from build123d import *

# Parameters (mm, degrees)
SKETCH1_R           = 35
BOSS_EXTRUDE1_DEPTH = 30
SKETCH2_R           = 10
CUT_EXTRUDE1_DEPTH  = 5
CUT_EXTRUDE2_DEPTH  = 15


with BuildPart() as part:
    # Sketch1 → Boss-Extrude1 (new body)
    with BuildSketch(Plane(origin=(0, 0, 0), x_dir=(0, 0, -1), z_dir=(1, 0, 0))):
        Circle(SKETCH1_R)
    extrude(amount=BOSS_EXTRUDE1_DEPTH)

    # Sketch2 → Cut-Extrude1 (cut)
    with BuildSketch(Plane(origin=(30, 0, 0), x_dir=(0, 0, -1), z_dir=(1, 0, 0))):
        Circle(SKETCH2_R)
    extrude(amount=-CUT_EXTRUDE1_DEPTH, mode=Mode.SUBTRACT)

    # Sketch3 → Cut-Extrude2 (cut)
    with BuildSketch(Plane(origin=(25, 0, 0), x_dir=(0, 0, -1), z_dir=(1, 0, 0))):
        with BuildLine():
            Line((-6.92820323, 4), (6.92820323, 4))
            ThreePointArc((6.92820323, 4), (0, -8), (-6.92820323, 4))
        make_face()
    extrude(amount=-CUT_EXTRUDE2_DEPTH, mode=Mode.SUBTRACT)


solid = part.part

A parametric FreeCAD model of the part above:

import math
import FreeCAD as App
import Part
import Sketcher

V = App.Vector
Q = App.Units.Quantity

doc = App.newDocument("Part")
body = doc.addObject("PartDesign::Body", "Body")

# Sketch on YZ plane
sketch1 = body.newObject("Sketcher::SketchObject", "Sketch")
sketch1.AttachmentSupport = (doc.getObject("YZ_Plane"), [""])
sketch1.MapMode = "FlatFace"
sketch1.addGeometry(Part.Circle(V(0, 0, 0), V(0, 0, 1), 35), False)
sketch1.addConstraint(Sketcher.Constraint("Coincident", 0, 3, -1, 1))
sketch1.addConstraint(Sketcher.Constraint("Diameter", 0, Q("70 mm")))
pad1 = body.newObject("PartDesign::Pad", "Pad")
pad1.Profile = sketch1
pad1.Length = 30

# Sketch on YZ plane
sketch2 = body.newObject("Sketcher::SketchObject", "Sketch001")
sketch2.AttachmentSupport = (doc.getObject("YZ_Plane"), [""])
sketch2.MapMode = "FlatFace"
sketch2.AttachmentOffset = App.Placement(V(0, 0, 30), App.Rotation())
sketch2.addGeometry(Part.Circle(V(0, 0, 0), V(0, 0, 1), 10), False)
sketch2.addConstraint(Sketcher.Constraint("Coincident", 0, 3, -1, 1))
sketch2.addConstraint(Sketcher.Constraint("Diameter", 0, Q("20 mm")))
pocket1 = body.newObject("PartDesign::Pocket", "Pocket")
pocket1.Profile = sketch2
pocket1.Length = 5

# Sketch on YZ plane
sketch3 = body.newObject("Sketcher::SketchObject", "Sketch002")
sketch3.AttachmentSupport = (doc.getObject("YZ_Plane"), [""])
sketch3.MapMode = "FlatFace"
sketch3.AttachmentOffset = App.Placement(V(0, 0, 25), App.Rotation())
sketch3.addGeometry(Part.LineSegment(V(4, -7, 0), V(4, 7, 0)), False)
sketch3.addGeometry(Part.ArcOfCircle(Part.Circle(V(0, 0, 0), V(0, 0, 1), 8), math.radians(60), math.radians(300)), False)
sketch3.addConstraint(Sketcher.Constraint("Coincident", 0, 1, 1, 2))
sketch3.addConstraint(Sketcher.Constraint("Coincident", 1, 1, 0, 2))
sketch3.addConstraint(Sketcher.Constraint("Vertical", 0))
sketch3.addConstraint(Sketcher.Constraint("Coincident", 1, 3, -1, 1))
sketch3.addConstraint(Sketcher.Constraint("Radius", 1, Q("8 mm")))
sketch3.addConstraint(Sketcher.Constraint("DistanceX", -1, 1, 0, 1, Q("4 mm")))
pocket2 = body.newObject("PartDesign::Pocket", "Pocket001")
pocket2.Profile = sketch3
pocket2.Length = 15

doc.recompute()
